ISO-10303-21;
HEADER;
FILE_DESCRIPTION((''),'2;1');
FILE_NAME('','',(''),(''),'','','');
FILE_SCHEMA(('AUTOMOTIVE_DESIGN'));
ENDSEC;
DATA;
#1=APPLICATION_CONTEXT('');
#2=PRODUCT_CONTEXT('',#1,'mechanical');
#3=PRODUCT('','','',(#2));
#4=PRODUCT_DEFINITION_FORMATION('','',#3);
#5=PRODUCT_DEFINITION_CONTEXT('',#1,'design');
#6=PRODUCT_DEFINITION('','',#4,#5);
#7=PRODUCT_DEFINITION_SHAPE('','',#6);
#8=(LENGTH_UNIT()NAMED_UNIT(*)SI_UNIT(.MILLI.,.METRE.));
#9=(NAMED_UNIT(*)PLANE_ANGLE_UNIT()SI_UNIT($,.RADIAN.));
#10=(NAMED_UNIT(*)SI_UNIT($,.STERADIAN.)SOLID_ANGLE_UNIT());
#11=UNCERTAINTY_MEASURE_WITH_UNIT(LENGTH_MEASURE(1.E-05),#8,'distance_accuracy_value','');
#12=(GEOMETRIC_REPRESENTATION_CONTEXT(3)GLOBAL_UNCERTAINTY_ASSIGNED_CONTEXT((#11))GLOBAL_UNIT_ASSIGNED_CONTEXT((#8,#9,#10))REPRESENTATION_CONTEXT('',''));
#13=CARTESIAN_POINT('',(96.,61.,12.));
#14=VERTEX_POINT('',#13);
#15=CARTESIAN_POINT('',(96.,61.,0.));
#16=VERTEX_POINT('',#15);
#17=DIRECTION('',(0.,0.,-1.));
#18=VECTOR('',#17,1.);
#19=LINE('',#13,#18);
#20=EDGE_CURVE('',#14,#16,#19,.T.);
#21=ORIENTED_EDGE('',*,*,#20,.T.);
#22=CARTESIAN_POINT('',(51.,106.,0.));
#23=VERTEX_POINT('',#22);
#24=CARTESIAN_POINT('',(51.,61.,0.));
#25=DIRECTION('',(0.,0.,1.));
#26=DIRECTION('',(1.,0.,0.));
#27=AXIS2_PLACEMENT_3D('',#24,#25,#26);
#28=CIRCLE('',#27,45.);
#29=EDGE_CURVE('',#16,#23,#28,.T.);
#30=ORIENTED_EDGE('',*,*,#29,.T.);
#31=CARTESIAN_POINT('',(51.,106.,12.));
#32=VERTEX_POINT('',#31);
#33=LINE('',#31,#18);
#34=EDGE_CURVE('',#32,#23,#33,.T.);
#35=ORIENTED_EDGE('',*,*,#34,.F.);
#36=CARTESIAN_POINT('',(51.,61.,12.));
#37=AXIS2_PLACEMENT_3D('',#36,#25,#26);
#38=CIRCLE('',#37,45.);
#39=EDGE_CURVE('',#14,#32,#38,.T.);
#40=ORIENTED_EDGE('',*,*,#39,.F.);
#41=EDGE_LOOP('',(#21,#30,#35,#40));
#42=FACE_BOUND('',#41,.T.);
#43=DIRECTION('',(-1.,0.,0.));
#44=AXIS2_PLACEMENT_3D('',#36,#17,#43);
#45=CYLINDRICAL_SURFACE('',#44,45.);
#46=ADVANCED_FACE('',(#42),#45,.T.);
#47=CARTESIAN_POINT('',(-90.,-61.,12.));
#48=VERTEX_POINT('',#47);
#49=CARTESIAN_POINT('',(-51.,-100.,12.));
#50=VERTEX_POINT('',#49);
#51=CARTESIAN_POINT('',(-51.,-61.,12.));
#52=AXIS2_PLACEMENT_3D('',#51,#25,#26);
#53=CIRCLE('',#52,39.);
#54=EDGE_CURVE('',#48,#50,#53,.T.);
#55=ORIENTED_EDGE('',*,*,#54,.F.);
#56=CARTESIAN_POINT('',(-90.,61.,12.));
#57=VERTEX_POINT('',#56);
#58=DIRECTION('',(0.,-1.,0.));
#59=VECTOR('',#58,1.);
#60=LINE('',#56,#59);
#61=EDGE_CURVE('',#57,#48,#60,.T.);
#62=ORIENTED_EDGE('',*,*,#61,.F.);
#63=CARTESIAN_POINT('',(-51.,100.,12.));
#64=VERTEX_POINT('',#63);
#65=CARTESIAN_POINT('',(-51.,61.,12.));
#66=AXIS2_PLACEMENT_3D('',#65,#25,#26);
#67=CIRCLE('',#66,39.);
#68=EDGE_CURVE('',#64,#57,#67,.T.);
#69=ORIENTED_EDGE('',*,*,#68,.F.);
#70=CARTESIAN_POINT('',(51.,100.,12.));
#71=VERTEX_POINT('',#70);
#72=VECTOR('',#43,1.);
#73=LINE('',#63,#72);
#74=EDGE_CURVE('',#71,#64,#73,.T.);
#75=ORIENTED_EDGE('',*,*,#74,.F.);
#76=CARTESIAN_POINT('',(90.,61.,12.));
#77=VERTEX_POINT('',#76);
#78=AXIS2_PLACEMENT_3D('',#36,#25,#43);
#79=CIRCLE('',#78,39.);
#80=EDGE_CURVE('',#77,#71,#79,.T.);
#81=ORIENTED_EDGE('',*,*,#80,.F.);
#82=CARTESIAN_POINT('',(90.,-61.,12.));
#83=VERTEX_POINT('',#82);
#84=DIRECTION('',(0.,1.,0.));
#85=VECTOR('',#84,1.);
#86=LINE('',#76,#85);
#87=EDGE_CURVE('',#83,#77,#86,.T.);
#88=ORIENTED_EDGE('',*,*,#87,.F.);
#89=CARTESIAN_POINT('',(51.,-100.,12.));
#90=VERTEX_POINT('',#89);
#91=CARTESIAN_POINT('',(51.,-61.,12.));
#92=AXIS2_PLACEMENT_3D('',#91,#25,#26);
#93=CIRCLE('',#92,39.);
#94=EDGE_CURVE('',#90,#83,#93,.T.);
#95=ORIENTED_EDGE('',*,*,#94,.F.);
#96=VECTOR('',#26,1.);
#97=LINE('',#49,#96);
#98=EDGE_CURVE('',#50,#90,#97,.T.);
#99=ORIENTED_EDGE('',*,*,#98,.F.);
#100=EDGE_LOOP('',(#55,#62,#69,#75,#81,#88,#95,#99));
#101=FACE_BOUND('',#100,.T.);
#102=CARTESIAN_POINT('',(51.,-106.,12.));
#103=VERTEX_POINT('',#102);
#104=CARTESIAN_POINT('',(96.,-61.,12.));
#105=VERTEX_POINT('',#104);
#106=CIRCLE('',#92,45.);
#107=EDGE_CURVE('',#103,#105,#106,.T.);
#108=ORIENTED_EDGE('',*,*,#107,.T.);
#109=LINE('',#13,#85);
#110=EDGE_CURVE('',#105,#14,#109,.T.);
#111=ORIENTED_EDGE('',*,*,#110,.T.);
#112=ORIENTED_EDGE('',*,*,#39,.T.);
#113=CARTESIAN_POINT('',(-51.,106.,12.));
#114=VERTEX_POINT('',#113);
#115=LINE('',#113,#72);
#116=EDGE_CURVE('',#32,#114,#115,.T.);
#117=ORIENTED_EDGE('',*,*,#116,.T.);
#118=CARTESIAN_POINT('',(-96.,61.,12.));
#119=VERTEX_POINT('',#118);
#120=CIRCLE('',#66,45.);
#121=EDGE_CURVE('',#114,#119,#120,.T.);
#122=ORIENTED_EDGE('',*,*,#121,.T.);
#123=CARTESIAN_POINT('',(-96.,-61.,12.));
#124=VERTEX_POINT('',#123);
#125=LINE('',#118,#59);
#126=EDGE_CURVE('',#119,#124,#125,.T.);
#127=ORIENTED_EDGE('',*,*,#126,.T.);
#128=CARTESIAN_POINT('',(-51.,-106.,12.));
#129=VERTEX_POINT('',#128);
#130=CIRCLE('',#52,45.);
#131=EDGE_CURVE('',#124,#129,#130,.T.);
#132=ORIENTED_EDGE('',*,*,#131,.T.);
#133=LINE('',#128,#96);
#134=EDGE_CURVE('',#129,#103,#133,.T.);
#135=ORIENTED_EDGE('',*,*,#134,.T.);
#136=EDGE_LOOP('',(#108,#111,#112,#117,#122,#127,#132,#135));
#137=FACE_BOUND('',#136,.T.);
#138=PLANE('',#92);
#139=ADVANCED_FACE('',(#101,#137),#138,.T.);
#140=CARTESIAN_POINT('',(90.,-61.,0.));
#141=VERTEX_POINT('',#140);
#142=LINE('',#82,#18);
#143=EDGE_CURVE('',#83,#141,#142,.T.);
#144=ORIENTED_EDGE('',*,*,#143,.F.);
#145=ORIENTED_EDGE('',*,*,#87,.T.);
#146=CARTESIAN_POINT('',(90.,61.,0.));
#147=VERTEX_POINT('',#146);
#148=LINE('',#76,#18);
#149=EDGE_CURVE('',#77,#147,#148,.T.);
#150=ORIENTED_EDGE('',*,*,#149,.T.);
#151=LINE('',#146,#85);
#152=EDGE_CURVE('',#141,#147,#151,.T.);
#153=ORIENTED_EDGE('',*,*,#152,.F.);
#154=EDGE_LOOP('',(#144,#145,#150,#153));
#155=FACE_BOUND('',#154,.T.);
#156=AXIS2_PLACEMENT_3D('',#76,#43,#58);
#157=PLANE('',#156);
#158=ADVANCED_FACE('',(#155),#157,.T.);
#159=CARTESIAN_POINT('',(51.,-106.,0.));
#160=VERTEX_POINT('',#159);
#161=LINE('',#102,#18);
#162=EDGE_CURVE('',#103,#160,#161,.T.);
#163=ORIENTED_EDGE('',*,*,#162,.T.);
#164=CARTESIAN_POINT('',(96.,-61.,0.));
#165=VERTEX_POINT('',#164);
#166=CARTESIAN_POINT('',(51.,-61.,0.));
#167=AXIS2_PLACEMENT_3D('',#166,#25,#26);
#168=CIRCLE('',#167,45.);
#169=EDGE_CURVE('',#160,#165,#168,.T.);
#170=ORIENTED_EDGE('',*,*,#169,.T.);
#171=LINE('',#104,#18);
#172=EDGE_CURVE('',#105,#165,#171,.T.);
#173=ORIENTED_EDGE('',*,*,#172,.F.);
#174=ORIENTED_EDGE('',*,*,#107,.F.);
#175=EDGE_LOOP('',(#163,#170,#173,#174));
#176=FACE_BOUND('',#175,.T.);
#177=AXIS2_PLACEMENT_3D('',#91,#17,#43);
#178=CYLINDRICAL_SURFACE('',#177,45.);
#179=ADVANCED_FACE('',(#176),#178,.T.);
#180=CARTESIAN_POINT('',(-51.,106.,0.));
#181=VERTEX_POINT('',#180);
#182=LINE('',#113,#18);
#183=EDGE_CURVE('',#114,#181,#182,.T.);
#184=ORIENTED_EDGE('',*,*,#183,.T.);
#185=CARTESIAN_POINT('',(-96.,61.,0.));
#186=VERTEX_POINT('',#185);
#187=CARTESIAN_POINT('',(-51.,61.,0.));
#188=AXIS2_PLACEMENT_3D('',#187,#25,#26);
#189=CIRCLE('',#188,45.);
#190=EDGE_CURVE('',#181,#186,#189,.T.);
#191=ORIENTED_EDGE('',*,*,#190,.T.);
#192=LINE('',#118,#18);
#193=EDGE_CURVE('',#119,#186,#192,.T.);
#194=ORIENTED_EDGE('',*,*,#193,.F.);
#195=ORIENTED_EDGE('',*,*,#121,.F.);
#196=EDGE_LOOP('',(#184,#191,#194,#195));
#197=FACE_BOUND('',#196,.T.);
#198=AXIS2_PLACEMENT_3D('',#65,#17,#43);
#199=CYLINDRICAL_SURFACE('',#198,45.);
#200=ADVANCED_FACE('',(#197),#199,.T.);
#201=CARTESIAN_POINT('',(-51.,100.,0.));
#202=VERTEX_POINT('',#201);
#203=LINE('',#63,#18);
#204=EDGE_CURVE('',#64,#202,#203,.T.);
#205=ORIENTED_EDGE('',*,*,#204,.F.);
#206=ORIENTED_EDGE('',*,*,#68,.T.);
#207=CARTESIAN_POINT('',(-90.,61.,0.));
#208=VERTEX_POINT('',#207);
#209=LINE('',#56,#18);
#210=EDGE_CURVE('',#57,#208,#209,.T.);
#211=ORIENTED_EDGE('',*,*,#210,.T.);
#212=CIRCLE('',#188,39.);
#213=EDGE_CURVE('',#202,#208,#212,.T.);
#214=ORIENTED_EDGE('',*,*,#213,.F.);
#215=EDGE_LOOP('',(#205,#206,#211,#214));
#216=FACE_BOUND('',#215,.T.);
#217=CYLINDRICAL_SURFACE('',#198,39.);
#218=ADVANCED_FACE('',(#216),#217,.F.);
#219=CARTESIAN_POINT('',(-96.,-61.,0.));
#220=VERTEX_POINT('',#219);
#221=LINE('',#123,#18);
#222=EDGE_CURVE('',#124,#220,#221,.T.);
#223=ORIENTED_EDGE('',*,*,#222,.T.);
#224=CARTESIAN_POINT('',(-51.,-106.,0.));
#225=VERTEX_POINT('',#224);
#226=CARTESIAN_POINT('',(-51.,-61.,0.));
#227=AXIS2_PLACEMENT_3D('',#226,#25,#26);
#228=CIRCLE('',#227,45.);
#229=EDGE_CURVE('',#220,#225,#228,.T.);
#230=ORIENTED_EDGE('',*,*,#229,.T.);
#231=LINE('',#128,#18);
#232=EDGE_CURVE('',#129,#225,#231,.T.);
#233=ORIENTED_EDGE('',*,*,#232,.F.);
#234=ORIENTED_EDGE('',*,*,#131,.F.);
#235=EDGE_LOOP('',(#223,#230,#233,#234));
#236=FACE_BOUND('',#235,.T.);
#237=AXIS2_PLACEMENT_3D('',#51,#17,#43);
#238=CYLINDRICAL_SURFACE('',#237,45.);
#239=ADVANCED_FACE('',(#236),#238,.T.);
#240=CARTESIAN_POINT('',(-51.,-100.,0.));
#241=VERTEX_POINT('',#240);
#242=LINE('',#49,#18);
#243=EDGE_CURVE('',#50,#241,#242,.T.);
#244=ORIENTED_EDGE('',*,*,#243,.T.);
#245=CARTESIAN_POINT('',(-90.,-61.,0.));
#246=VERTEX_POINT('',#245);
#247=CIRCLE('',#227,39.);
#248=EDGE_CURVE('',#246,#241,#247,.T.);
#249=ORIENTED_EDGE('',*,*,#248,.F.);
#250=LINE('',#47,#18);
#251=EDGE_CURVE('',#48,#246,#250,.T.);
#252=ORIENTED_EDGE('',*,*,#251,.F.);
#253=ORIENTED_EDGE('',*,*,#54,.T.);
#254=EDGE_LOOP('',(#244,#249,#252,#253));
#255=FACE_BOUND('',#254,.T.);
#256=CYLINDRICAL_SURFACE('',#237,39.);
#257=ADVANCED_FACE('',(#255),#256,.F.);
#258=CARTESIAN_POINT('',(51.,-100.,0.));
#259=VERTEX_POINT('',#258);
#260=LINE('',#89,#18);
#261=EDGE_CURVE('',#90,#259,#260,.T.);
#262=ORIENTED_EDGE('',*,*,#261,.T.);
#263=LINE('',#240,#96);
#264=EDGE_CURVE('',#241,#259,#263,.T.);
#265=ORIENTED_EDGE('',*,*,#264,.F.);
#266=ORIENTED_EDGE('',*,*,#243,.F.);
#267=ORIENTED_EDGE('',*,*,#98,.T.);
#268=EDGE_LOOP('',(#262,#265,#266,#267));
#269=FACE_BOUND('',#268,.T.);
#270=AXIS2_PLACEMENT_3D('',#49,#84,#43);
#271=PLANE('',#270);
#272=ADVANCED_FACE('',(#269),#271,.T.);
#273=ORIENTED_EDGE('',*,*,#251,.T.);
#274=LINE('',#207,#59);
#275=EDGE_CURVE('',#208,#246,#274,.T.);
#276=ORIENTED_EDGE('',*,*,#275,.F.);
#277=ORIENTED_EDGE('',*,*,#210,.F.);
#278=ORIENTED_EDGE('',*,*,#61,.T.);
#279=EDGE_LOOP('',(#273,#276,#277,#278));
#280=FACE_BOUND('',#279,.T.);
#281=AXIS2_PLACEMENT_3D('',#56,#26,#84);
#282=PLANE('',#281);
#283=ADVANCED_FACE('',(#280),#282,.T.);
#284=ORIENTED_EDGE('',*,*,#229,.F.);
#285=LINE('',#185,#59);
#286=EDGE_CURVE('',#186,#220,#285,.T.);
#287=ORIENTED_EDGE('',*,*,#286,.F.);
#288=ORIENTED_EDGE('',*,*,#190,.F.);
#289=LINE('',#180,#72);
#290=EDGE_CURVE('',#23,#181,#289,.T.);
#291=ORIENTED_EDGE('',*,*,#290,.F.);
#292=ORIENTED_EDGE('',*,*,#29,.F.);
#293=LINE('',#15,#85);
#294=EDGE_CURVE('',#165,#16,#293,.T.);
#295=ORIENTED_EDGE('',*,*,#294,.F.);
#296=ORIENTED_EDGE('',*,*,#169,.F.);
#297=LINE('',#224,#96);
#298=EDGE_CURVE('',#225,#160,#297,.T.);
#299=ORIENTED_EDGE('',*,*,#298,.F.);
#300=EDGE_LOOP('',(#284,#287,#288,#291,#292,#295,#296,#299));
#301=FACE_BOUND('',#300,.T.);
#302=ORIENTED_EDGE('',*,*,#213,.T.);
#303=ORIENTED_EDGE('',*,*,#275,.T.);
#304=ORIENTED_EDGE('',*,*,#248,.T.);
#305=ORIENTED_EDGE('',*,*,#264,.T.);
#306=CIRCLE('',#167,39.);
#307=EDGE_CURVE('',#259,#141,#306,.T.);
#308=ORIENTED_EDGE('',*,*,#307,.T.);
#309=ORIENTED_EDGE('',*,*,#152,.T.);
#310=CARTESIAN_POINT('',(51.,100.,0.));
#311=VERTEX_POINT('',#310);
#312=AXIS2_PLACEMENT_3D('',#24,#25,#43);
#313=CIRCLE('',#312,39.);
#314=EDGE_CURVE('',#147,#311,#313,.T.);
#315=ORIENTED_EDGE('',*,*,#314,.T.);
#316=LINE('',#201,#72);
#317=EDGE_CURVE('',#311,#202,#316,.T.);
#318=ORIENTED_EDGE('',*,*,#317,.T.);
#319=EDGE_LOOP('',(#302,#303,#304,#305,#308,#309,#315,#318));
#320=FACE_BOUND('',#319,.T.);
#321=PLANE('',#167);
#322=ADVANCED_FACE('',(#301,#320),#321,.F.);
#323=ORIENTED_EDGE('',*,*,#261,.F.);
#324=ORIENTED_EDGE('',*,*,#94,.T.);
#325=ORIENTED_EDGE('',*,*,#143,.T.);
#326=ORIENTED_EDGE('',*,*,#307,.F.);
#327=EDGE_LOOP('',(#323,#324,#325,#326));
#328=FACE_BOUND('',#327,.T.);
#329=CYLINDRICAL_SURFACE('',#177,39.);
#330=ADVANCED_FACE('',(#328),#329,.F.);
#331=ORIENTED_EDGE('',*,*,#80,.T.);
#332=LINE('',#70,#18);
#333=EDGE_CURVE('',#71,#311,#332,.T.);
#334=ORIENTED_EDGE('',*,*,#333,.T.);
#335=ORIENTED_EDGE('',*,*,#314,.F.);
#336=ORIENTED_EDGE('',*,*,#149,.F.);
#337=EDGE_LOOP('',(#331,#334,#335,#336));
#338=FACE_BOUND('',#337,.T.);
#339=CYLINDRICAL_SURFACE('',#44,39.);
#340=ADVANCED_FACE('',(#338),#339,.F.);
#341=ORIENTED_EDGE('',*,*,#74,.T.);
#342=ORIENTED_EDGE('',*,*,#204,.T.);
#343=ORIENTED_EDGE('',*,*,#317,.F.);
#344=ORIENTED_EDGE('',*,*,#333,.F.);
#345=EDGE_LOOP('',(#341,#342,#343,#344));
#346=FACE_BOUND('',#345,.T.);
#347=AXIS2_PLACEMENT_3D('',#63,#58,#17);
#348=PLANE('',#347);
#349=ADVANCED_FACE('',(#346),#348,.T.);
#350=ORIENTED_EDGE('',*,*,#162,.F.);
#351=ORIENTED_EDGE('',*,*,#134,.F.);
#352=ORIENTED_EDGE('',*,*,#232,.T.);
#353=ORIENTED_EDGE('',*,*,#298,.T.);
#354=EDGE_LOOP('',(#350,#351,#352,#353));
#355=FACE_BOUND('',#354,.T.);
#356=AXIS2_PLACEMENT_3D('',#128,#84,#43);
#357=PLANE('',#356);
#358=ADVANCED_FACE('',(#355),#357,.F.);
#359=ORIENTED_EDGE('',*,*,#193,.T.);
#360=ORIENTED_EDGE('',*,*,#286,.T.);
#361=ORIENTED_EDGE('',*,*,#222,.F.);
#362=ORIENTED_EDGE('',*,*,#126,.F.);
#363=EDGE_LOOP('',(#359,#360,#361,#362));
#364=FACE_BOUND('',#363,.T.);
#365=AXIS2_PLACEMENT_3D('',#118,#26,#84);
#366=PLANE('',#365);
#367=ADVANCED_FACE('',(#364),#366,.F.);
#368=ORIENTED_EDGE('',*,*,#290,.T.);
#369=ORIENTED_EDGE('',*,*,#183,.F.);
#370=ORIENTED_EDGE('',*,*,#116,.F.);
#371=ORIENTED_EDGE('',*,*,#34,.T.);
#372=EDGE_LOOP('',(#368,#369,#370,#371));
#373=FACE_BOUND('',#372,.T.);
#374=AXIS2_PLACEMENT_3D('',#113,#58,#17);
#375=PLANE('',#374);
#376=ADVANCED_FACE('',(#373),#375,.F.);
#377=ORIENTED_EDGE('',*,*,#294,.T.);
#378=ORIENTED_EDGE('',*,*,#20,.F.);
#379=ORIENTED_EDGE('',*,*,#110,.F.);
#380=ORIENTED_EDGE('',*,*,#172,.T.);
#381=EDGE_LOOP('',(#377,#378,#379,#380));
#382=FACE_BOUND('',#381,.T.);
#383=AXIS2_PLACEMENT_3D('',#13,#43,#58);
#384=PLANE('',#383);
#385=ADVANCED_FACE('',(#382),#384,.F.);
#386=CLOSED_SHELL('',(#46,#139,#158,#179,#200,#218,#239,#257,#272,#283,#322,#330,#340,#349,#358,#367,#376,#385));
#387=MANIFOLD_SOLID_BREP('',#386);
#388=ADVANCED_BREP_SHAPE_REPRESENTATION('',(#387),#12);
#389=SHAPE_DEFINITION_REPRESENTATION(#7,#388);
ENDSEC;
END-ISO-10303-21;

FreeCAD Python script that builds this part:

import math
import FreeCAD as App
import Part
import Sketcher
from FreeCAD import Vector
Q = App.Units.Quantity

doc = App.newDocument("Part")
body = doc.addObject("PartDesign::Body", "Body")

# Sketch on XY plane
sketch1 = body.newObject("Sketcher::SketchObject", "Sketch")
sketch1.AttachmentSupport = (doc.getObject("XY_Plane"), [""])
sketch1.MapMode = "FlatFace"
sketch1.addGeometry([
    Part.LineSegment(Vector(51, 106, 0), Vector(-51, 106, 0)),  # 0
    Part.ArcOfCircle(Part.Circle(Vector(-51, 61, 0), Vector(0, 0, 1), 45), math.radians(90), math.radians(180)),  # 1
    Part.LineSegment(Vector(-96, 61, 0), Vector(-96, -61, 0)),  # 2
    Part.ArcOfCircle(Part.Circle(Vector(-51, -61, 0), Vector(0, 0, 1), 45), math.radians(-180), math.radians(-90)),  # 3
    Part.LineSegment(Vector(-51, -106, 0), Vector(51, -106, 0)),  # 4
    Part.ArcOfCircle(Part.Circle(Vector(51, -61, 0), Vector(0, 0, 1), 45), math.radians(-90), math.radians(0)),  # 5
    Part.LineSegment(Vector(96, -61, 0), Vector(96, 61, 0)),  # 6
    Part.ArcOfCircle(Part.Circle(Vector(51, 61, 0), Vector(0, 0, 1), 45), math.radians(0), math.radians(90)),  # 7
    Part.LineSegment(Vector(-51, 100, 0), Vector(51, 100, 0)),  # 8
    Part.ArcOfCircle(Part.Circle(Vector(51, 61, 0), Vector(0, 0, 1), 39), math.radians(0), math.radians(90)),  # 9
    Part.LineSegment(Vector(90, 61, 0), Vector(90, -61, 0)),  # 10
    Part.ArcOfCircle(Part.Circle(Vector(51, -61, 0), Vector(0, 0, 1), 39), math.radians(-90), math.radians(0)),  # 11
    Part.LineSegment(Vector(51, -100, 0), Vector(-51, -100, 0)),  # 12
    Part.ArcOfCircle(Part.Circle(Vector(-51, -61, 0), Vector(0, 0, 1), 39), math.radians(-180), math.radians(-90)),  # 13
    Part.LineSegment(Vector(-90, -61, 0), Vector(-90, 61, 0)),  # 14
    Part.ArcOfCircle(Part.Circle(Vector(-51, 61, 0), Vector(0, 0, 1), 39), math.radians(90), math.radians(180)),  # 15
], False)
sketch1.addConstraint([
    Sketcher.Constraint("Tangent", 0, 2, 1, 1),
    Sketcher.Constraint("Tangent", 1, 2, 2, 1),
    Sketcher.Constraint("Tangent", 2, 2, 3, 1),
    Sketcher.Constraint("Tangent", 3, 2, 4, 1),
    Sketcher.Constraint("Tangent", 4, 2, 5, 1),
    Sketcher.Constraint("Tangent", 5, 2, 6, 1),
    Sketcher.Constraint("Tangent", 6, 2, 7, 1),
    Sketcher.Constraint("Tangent", 7, 2, 0, 1),
    Sketcher.Constraint("Tangent", 8, 2, 9, 2),
    Sketcher.Constraint("Tangent", 9, 1, 10, 1),
    Sketcher.Constraint("Tangent", 10, 2, 11, 2),
    Sketcher.Constraint("Tangent", 11, 1, 12, 1),
    Sketcher.Constraint("Tangent", 12, 2, 13, 2),
    Sketcher.Constraint("Tangent", 13, 1, 14, 1),
    Sketcher.Constraint("Tangent", 14, 2, 15, 2),
    Sketcher.Constraint("Tangent", 15, 1, 8, 1),
    Sketcher.Constraint("Horizontal", 0),
    Sketcher.Constraint("Vertical", 2),
    Sketcher.Constraint("Horizontal", 4),
    Sketcher.Constraint("Vertical", 6),
    Sketcher.Constraint("Horizontal", 8),
    Sketcher.Constraint("Vertical", 10),
    Sketcher.Constraint("Horizontal", 12),
    Sketcher.Constraint("Vertical", 14),
    Sketcher.Constraint("Coincident", 9, 3, 7, 3),
    Sketcher.Constraint("Coincident", 11, 3, 5, 3),
    Sketcher.Constraint("Coincident", 13, 3, 3, 3),
    Sketcher.Constraint("Equal", 1, 3),
    Sketcher.Constraint("Equal", 3, 5),
    Sketcher.Constraint("Equal", 5, 7),
    Sketcher.Constraint("Equal", 13, 15),
    Sketcher.Constraint("Symmetric", 1, 3, 5, 3, -1, 1),
    Sketcher.Constraint("Radius", 1, Q("45 mm")),
    Sketcher.Constraint("Radius", 9, Q("39 mm")),
    Sketcher.Constraint("DistanceX", 0, 2, 0, 1, Q("102 mm")),
    Sketcher.Constraint("DistanceY", 2, 2, 2, 1, Q("122 mm")),
])
pad1 = body.newObject("PartDesign::Pad", "Pad")
pad1.Profile = sketch1
pad1.Length = 12

doc.recompute()
